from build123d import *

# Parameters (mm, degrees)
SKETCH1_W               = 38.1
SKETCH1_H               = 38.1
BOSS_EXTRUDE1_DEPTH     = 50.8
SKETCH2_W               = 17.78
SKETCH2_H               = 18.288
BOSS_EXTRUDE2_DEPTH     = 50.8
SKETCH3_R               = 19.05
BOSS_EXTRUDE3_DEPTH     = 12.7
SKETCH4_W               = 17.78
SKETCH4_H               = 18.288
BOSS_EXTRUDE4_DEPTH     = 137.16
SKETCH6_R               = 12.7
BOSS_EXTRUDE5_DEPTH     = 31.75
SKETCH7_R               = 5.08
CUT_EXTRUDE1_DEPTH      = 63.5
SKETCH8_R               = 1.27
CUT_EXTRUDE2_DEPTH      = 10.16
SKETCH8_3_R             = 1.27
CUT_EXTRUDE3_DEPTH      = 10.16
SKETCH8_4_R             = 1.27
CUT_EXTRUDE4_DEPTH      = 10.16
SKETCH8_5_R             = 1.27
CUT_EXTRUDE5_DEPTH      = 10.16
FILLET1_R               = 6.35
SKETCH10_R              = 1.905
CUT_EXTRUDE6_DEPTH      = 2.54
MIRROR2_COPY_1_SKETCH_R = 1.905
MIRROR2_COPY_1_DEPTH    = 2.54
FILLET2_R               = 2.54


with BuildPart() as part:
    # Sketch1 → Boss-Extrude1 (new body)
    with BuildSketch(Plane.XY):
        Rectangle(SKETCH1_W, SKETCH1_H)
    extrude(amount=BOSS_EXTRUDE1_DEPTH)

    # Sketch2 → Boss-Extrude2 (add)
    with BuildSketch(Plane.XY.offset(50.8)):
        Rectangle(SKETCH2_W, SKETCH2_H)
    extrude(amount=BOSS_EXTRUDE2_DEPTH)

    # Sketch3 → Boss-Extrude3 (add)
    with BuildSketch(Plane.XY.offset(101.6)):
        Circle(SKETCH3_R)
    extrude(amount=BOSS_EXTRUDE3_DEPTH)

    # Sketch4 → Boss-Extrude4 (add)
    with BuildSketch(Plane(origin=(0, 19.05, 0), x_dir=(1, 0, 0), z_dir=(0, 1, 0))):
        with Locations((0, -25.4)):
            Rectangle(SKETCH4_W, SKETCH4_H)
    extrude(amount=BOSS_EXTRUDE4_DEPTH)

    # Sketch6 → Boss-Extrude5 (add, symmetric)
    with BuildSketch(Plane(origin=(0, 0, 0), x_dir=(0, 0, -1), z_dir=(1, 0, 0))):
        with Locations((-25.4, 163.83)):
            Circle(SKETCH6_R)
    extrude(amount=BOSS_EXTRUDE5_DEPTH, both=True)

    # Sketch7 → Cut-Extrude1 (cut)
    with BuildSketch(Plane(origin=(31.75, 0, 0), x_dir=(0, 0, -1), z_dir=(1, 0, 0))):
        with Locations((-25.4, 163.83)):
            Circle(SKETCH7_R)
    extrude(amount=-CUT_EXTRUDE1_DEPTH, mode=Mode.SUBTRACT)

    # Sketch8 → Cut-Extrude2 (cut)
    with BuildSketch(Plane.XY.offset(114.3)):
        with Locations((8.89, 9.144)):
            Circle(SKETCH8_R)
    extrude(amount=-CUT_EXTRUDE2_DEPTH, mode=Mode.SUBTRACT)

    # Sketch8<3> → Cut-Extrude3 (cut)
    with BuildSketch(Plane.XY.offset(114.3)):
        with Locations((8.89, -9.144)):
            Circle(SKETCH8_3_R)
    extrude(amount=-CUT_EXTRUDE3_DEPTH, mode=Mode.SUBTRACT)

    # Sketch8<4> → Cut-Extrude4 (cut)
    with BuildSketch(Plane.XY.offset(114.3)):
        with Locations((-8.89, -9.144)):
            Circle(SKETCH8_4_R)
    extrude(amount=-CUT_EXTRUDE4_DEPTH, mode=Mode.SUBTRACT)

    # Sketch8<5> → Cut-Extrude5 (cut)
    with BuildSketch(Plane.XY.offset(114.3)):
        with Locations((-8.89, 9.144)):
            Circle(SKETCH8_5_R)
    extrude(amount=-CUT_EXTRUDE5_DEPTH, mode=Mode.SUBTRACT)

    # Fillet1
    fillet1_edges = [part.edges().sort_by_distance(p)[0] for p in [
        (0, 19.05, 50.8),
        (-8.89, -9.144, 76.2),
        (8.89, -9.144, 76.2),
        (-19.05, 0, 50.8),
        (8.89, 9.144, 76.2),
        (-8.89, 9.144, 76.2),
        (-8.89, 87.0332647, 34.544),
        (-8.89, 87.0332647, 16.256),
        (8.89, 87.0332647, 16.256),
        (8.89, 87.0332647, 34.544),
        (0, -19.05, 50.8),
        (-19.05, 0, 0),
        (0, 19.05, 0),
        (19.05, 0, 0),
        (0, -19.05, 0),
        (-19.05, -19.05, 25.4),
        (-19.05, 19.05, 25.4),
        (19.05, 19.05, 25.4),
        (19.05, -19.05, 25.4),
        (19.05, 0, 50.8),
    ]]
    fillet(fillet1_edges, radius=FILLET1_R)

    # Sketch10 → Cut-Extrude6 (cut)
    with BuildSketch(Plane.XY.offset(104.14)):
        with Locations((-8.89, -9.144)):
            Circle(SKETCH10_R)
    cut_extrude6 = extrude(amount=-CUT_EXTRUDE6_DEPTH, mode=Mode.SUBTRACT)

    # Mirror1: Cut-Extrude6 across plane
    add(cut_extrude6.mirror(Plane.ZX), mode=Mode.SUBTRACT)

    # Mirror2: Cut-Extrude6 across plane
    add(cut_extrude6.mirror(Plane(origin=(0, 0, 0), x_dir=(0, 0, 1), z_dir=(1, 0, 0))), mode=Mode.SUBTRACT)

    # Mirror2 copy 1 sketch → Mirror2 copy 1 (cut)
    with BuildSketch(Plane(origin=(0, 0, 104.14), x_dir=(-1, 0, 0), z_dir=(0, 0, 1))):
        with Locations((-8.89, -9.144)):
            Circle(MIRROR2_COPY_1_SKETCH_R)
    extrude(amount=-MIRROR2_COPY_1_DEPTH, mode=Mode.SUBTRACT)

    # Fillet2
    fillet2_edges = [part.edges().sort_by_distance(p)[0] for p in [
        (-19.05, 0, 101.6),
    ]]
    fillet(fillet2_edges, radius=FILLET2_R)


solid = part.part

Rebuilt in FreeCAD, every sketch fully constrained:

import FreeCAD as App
import Part
import Sketcher

V = App.Vector
Q = App.Units.Quantity


def edges_at(feature, points):
    """Names of the edges that pass closest to the given points."""
    edges = feature.Shape.Edges
    near = lambda p: min(range(len(edges)), key=lambda i: edges[i].distToShape(Part.Vertex(*p))[0])
    return sorted({f"Edge{near(p) + 1}" for p in points})


def add_polygon(sketch, points):
    """Adds a closed chain of lines whose ends are joined by coincident constraints."""
    first, n = sketch.GeometryCount, len(points)
    for a, b in zip(points, points[1:] + points[:1]):
        sketch.addGeometry(Part.LineSegment(App.Vector(*a, 0), App.Vector(*b, 0)), False)
    for i in range(n):
        sketch.addConstraint(Sketcher.Constraint("Coincident", first + i, 2, first + (i + 1) % n, 1))

doc = App.newDocument("Part")
params = doc.addObject("Spreadsheet::Sheet", "Params")
for row, (alias, value) in enumerate([
    ("sketch1_width", "1.5 in"),
    ("pad1_length", "2 in"),
    ("sketch2_width", "0.7 in"),
    ("sketch2_height", "0.72 in"),
    ("pad2_length", "2 in"),
    ("sketch3_diameter", "1.5 in"),
    ("pad3_length", "0.5 in"),
    ("sketch4_width", "0.7 in"),
    ("sketch4_height", "0.72 in"),
    ("pad4_length", "5.4 in"),
    ("sketch5_diameter", "1 in"),
    ("pad5_length", "2.5 in"),
    ("sketch6_diameter", "0.4 in"),
    ("pocket1_length", "2.5 in"),
    ("sketch7_diameter", "0.1 in"),
    ("pocket2_length", "0.4 in"),
    ("sketch8_diameter", "0.1 in"),
    ("pocket3_length", "0.4 in"),
    ("sketch9_diameter", "0.1 in"),
    ("pocket4_length", "0.4 in"),
    ("sketch10_diameter", "0.1 in"),
    ("pocket5_length", "0.4 in"),
    ("fillet_radius", "0.25 in"),
    ("sketch11_diameter", "0.15 in"),
    ("pocket6_length", "0.1 in"),
    ("sketch12_diameter", "0.15 in"),
    ("pocket7_length", "0.1 in"),
    ("fillet2_radius", "0.1 in"),
], start=1):
    params.set(f"A{row}", alias)
    params.set(f"B{row}", "=" + value)
    params.setAlias(f"B{row}", alias)

body = doc.addObject("PartDesign::Body", "Body")

# Sketch on XY plane
sketch1 = body.newObject("Sketcher::SketchObject", "Sketch")
sketch1.AttachmentSupport = (doc.getObject("XY_Plane"), [""])
sketch1.MapMode = "FlatFace"
add_polygon(sketch1, [(-19, 19), (-19, -19), (19, -19), (19, 19)])  # lines 0-3
sketch1.addConstraint(Sketcher.Constraint("Vertical", 0))
sketch1.addConstraint(Sketcher.Constraint("Horizontal", 1))
sketch1.addConstraint(Sketcher.Constraint("Vertical", 2))
sketch1.addConstraint(Sketcher.Constraint("Horizontal", 3))
sketch1.addConstraint(Sketcher.Constraint("Symmetric", 0, 2, 2, 2, -1, 1))
sketch1.addConstraint(Sketcher.Constraint("Equal", 3, 0))
sketch1.addConstraint(Sketcher.Constraint("DistanceX", 1, 1, 1, 2, Q("1.5 in")))
sketch1.setExpression("Constraints[10]", "Params.sketch1_width")
pad1 = body.newObject("PartDesign::Pad", "Pad")
pad1.Profile = sketch1
pad1.setExpression("Length", "Params.pad1_length")

# Sketch on XY plane
sketch2 = body.newObject("Sketcher::SketchObject", "Sketch001")
sketch2.AttachmentSupport = (doc.getObject("XY_Plane"), [""])
sketch2.MapMode = "FlatFace"
sketch2.AttachmentOffset = App.Placement(V(0, 0, 2 * 25.4), App.Rotation())
add_polygon(sketch2, [(-9, 9), (-9, -9), (9, -9), (9, 9)])  # lines 0-3
sketch2.addConstraint(Sketcher.Constraint("Vertical", 0))
sketch2.addConstraint(Sketcher.Constraint("Horizontal", 1))
sketch2.addConstraint(Sketcher.Constraint("Vertical", 2))
sketch2.addConstraint(Sketcher.Constraint("Horizontal", 3))
sketch2.addConstraint(Sketcher.Constraint("Symmetric", 0, 2, 2, 2, -1, 1))
sketch2.addConstraint(Sketcher.Constraint("DistanceX", 1, 1, 1, 2, Q("0.7 in")))
sketch2.addConstraint(Sketcher.Constraint("DistanceY", 0, 2, 0, 1, Q("0.72 in")))
sketch2.setExpression("Constraints[9]", "Params.sketch2_width")
sketch2.setExpression("Constraints[10]", "Params.sketch2_height")
pad2 = body.newObject("PartDesign::Pad", "Pad001")
pad2.Profile = sketch2
pad2.setExpression("Length", "Params.pad2_length")

# Sketch on XY plane
sketch3 = body.newObject("Sketcher::SketchObject", "Sketch002")
sketch3.AttachmentSupport = (doc.getObject("XY_Plane"), [""])
sketch3.MapMode = "FlatFace"
sketch3.AttachmentOffset = App.Placement(V(0, 0, 4 * 25.4), App.Rotation())
sketch3.addGeometry(Part.Circle(V(0, 0, 0), V(0, 0, 1), 19), False)
sketch3.addConstraint(Sketcher.Constraint("Coincident", 0, 3, -1, 1))
sketch3.addConstraint(Sketcher.Constraint("Diameter", 0, Q("1.5 in")))
sketch3.setExpression("Constraints[1]", "Params.sketch3_diameter")
pad3 = body.newObject("PartDesign::Pad", "Pad002")
pad3.Profile = sketch3
pad3.setExpression("Length", "Params.pad3_length")

# Sketch on XZ plane
sketch4 = body.newObject("Sketcher::SketchObject", "Sketch003")
sketch4.AttachmentSupport = (doc.getObject("XZ_Plane"), [""])
sketch4.MapMode = "FlatFace"
sketch4.AttachmentOffset = App.Placement(V(0, 0, -0.75 * 25.4), App.Rotation())
add_polygon(sketch4, [(-9, 16), (-9, 35), (9, 35), (9, 16)])  # lines 0-3
sketch4.addConstraint(Sketcher.Constraint("Vertical", 0))
sketch4.addConstraint(Sketcher.Constraint("Horizontal", 1))
sketch4.addConstraint(Sketcher.Constraint("Vertical", 2))
sketch4.addConstraint(Sketcher.Constraint("Horizontal", 3))
sketch4.addConstraint(Sketcher.Constraint("DistanceX", 1, 1, 1, 2, Q("0.7 in")))
sketch4.addConstraint(Sketcher.Constraint("DistanceY", 0, 1, 0, 2, Q("0.72 in")))
sketch4.addConstraint(Sketcher.Constraint("DistanceX", 0, 2, -1, 1, Q("0.35 in")))
sketch4.addConstraint(Sketcher.Constraint("DistanceY", -1, 1, 0, 2, Q("1.36 in")))
sketch4.setExpression("Constraints[8]", "Params.sketch4_width")
sketch4.setExpression("Constraints[9]", "Params.sketch4_height")
pad4 = body.newObject("PartDesign::Pad", "Pad003")
pad4.Profile = sketch4
pad4.setExpression("Length", "Params.pad4_length")
pad4.Reversed = True

# Sketch on YZ plane
sketch5 = body.newObject("Sketcher::SketchObject", "Sketch004")
sketch5.AttachmentSupport = (doc.getObject("YZ_Plane"), [""])
sketch5.MapMode = "FlatFace"
sketch5.addGeometry(Part.Circle(V(164, 25, 0), V(0, 0, 1), 13), False)
sketch5.addConstraint(Sketcher.Constraint("Diameter", 0, Q("1 in")))
sketch5.addConstraint(Sketcher.Constraint("DistanceY", -1, 1, 0, 3, Q("1 in")))
sketch5.addConstraint(Sketcher.Constraint("DistanceX", -1, 1, 0, 3, Q("6.45 in")))
sketch5.setExpression("Constraints[0]", "Params.sketch5_diameter")
pad5 = body.newObject("PartDesign::Pad", "Pad004")
pad5.Profile = sketch5
pad5.setExpression("Length", "Params.pad5_length")
pad5.Midplane = True

# Sketch on YZ plane
sketch6 = body.newObject("Sketcher::SketchObject", "Sketch005")
sketch6.AttachmentSupport = (doc.getObject("YZ_Plane"), [""])
sketch6.MapMode = "FlatFace"
sketch6.AttachmentOffset = App.Placement(V(0, 0, 1.25 * 25.4), App.Rotation())
sketch6.addGeometry(Part.Circle(V(164, 25, 0), V(0, 0, 1), 5), False)
sketch6.addConstraint(Sketcher.Constraint("Diameter", 0, Q("0.4 in")))
sketch6.addConstraint(Sketcher.Constraint("DistanceY", -1, 1, 0, 3, Q("1 in")))
sketch6.addConstraint(Sketcher.Constraint("DistanceX", -1, 1, 0, 3, Q("6.45 in")))
sketch6.setExpression("Constraints[0]", "Params.sketch6_diameter")
pocket1 = body.newObject("PartDesign::Pocket", "Pocket")
pocket1.Profile = sketch6
pocket1.setExpression("Length", "Params.pocket1_length")

# Sketch on XY plane
sketch7 = body.newObject("Sketcher::SketchObject", "Sketch006")
sketch7.AttachmentSupport = (doc.getObject("XY_Plane"), [""])
sketch7.MapMode = "FlatFace"
sketch7.AttachmentOffset = App.Placement(V(0, 0, 4.5 * 25.4), App.Rotation())
sketch7.addGeometry(Part.Circle(V(8.9, 9.1, 0), V(0, 0, 1), 1.3), False)
sketch7.addConstraint(Sketcher.Constraint("Diameter", 0, Q("0.1 in")))
sketch7.addConstraint(Sketcher.Constraint("DistanceX", -1, 1, 0, 3, Q("0.35 in")))
sketch7.addConstraint(Sketcher.Constraint("DistanceY", -1, 1, 0, 3, Q("0.36 in")))
sketch7.setExpression("Constraints[0]", "Params.sketch7_diameter")
pocket2 = body.newObject("PartDesign::Pocket", "Pocket001")
pocket2.Profile = sketch7
pocket2.setExpression("Length", "Params.pocket2_length")

# Sketch on XY plane
sketch8 = body.newObject("Sketcher::SketchObject", "Sketch007")
sketch8.AttachmentSupport = (doc.getObject("XY_Plane"), [""])
sketch8.MapMode = "FlatFace"
sketch8.AttachmentOffset = App.Placement(V(0, 0, 4.5 * 25.4), App.Rotation())
sketch8.addGeometry(Part.Circle(V(8.9, -9.1, 0), V(0, 0, 1), 1.3), False)
sketch8.addConstraint(Sketcher.Constraint("Diameter", 0, Q("0.1 in")))
sketch8.addConstraint(Sketcher.Constraint("DistanceX", -1, 1, 0, 3, Q("0.35 in")))
sketch8.addConstraint(Sketcher.Constraint("DistanceY", 0, 3, -1, 1, Q("0.36 in")))
sketch8.setExpression("Constraints[0]", "Params.sketch8_diameter")
pocket3 = body.newObject("PartDesign::Pocket", "Pocket002")
pocket3.Profile = sketch8
pocket3.setExpression("Length", "Params.pocket3_length")

# Sketch on XY plane
sketch9 = body.newObject("Sketcher::SketchObject", "Sketch008")
sketch9.AttachmentSupport = (doc.getObject("XY_Plane"), [""])
sketch9.MapMode = "FlatFace"
sketch9.AttachmentOffset = App.Placement(V(0, 0, 4.5 * 25.4), App.Rotation())
sketch9.addGeometry(Part.Circle(V(-8.9, -9.1, 0), V(0, 0, 1), 1.3), False)
sketch9.addConstraint(Sketcher.Constraint("Diameter", 0, Q("0.1 in")))
sketch9.addConstraint(Sketcher.Constraint("DistanceX", 0, 3, -1, 1, Q("0.35 in")))
sketch9.addConstraint(Sketcher.Constraint("DistanceY", 0, 3, -1, 1, Q("0.36 in")))
sketch9.setExpression("Constraints[0]", "Params.sketch9_diameter")
pocket4 = body.newObject("PartDesign::Pocket", "Pocket003")
pocket4.Profile = sketch9
pocket4.setExpression("Length", "Params.pocket4_length")

# Sketch on XY plane
sketch10 = body.newObject("Sketcher::SketchObject", "Sketch009")
sketch10.AttachmentSupport = (doc.getObject("XY_Plane"), [""])
sketch10.MapMode = "FlatFace"
sketch10.AttachmentOffset = App.Placement(V(0, 0, 4.5 * 25.4), App.Rotation())
sketch10.addGeometry(Part.Circle(V(-8.9, 9.1, 0), V(0, 0, 1), 1.3), False)
sketch10.addConstraint(Sketcher.Constraint("Diameter", 0, Q("0.1 in")))
sketch10.addConstraint(Sketcher.Constraint("DistanceX", 0, 3, -1, 1, Q("0.35 in")))
sketch10.addConstraint(Sketcher.Constraint("DistanceY", -1, 1, 0, 3, Q("0.36 in")))
sketch10.setExpression("Constraints[0]", "Params.sketch10_diameter")
pocket5 = body.newObject("PartDesign::Pocket", "Pocket004")
pocket5.Profile = sketch10
pocket5.setExpression("Length", "Params.pocket5_length")
doc.recompute()

fillet = body.newObject("PartDesign::Fillet", "Fillet")
fillet.Base = (pocket5, edges_at(pocket5, [
    (0, 19.05, 50.8),
    (-8.89, -9.144, 76.2),
    (8.89, -9.144, 76.2),
    (-19.05, 0, 50.8),
    (8.89, 9.144, 76.2),
    (-8.89, 9.144, 76.2),
    (-8.89, 87.033, 34.544),
    (-8.89, 87.033, 16.256),
    (8.89, 87.033, 16.256),
    (8.89, 87.033, 34.544),
    (0, -19.05, 50.8),
    (-19.05, 0, 0),
    (0, 19.05, 0),
    (19.05, 0, 0),
    (0, -19.05, 0),
    (-19.05, -19.05, 25.4),
    (-19.05, 19.05, 25.4),
    (19.05, 19.05, 25.4),
    (19.05, -19.05, 25.4),
    (19.05, 0, 50.8),
]))
fillet.setExpression("Radius", "Params.fillet_radius")

# Sketch on XY plane
sketch11 = body.newObject("Sketcher::SketchObject", "Sketch010")
sketch11.AttachmentSupport = (doc.getObject("XY_Plane"), [""])
sketch11.MapMode = "FlatFace"
sketch11.AttachmentOffset = App.Placement(V(0, 0, 4.1 * 25.4), App.Rotation())
sketch11.addGeometry(Part.Circle(V(-8.9, -9.1, 0), V(0, 0, 1), 1.9), False)
sketch11.addConstraint(Sketcher.Constraint("Diameter", 0, Q("0.15 in")))
sketch11.addConstraint(Sketcher.Constraint("DistanceX", 0, 3, -1, 1, Q("0.35 in")))
sketch11.addConstraint(Sketcher.Constraint("DistanceY", 0, 3, -1, 1, Q("0.36 in")))
sketch11.setExpression("Constraints[0]", "Params.sketch11_diameter")
pocket6 = body.newObject("PartDesign::Pocket", "Pocket005")
pocket6.Profile = sketch11
pocket6.setExpression("Length", "Params.pocket6_length")
doc.recompute()

mirrored = body.newObject("PartDesign::Mirrored", "Mirrored")
mirrored.Originals = [pocket6]
mirrored.MirrorPlane = (doc.getObject("XZ_Plane"), [""])
body.Tip = mirrored
doc.recompute()

mirrored2 = body.newObject("PartDesign::Mirrored", "Mirrored001")
mirrored2.Originals = [pocket6]
mirrored2.MirrorPlane = (doc.getObject("YZ_Plane"), [""])
body.Tip = mirrored2

# Sketch on XY plane
sketch12 = body.newObject("Sketcher::SketchObject", "Sketch011")
sketch12.AttachmentSupport = (doc.getObject("XY_Plane"), [""])
sketch12.MapMode = "FlatFace"
sketch12.AttachmentOffset = App.Placement(V(0, 0, 4.1 * 25.4), App.Rotation())
sketch12.addGeometry(Part.Circle(V(8.9, 9.1, 0), V(0, 0, 1), 1.9), False)
sketch12.addConstraint(Sketcher.Constraint("Diameter", 0, Q("0.15 in")))
sketch12.addConstraint(Sketcher.Constraint("DistanceX", -1, 1, 0, 3, Q("0.35 in")))
sketch12.addConstraint(Sketcher.Constraint("DistanceY", -1, 1, 0, 3, Q("0.36 in")))
sketch12.setExpression("Constraints[0]", "Params.sketch12_diameter")
pocket7 = body.newObject("PartDesign::Pocket", "Pocket006")
pocket7.Profile = sketch12
pocket7.setExpression("Length", "Params.pocket7_length")
doc.recompute()

fillet2 = body.newObject("PartDesign::Fillet", "Fillet001")
fillet2.Base = (pocket7, edges_at(pocket7, [(-19.05, 0, 101.6)]))
fillet2.setExpression("Radius", "Params.fillet2_radius")

doc.recompute()
